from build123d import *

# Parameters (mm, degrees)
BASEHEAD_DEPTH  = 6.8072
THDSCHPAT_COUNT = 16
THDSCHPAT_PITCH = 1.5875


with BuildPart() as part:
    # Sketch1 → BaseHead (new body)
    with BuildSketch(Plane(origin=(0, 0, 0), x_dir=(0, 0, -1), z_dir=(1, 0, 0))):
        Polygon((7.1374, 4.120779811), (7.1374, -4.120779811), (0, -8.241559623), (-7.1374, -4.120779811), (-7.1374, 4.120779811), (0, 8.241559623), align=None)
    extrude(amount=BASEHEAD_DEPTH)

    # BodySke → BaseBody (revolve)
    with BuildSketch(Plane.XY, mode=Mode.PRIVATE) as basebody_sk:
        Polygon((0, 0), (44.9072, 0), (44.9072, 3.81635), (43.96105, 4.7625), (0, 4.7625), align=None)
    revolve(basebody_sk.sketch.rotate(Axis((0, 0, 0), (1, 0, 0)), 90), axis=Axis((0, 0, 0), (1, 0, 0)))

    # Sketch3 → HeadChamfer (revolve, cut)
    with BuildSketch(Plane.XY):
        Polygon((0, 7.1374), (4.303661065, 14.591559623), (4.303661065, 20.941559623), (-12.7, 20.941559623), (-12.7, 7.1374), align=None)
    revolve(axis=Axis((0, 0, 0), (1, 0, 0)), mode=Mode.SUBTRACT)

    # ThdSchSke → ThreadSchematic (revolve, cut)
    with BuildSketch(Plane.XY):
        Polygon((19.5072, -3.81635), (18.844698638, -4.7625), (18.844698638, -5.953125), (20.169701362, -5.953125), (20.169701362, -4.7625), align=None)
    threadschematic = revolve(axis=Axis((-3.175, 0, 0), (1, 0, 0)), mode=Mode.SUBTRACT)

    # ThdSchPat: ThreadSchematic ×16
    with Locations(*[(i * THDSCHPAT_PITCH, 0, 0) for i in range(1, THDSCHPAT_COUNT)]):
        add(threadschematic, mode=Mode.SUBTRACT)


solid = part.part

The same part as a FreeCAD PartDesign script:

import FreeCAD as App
import Part
import Sketcher

V = App.Vector
Q = App.Units.Quantity


def add_polygon(sketch, points):
    """Adds a closed chain of lines whose ends are joined by coincident constraints."""
    first, n = sketch.GeometryCount, len(points)
    for a, b in zip(points, points[1:] + points[:1]):
        sketch.addGeometry(Part.LineSegment(App.Vector(*a, 0), App.Vector(*b, 0)), False)
    for i in range(n):
        sketch.addConstraint(Sketcher.Constraint("Coincident", first + i, 2, first + (i + 1) % n, 1))

doc = App.newDocument("Part")
body = doc.addObject("PartDesign::Body", "Body")

sketch1 = body.newObject("Sketcher::SketchObject", "Sketch")
sketch1.AttachmentSupport = (doc.getObject("YZ_Plane"), [""])
sketch1.MapMode = "FlatFace"
add_polygon(sketch1, [(-4, -7), (4, -7), (8, 0), (4, 7), (-4, 7), (-8, 0)])
sketch1.addConstraint(Sketcher.Constraint("Horizontal", 0))
sketch1.addConstraint(Sketcher.Constraint("Horizontal", 3))
sketch1.addConstraint(Sketcher.Constraint("Symmetric", 0, 2, 3, 2, -1, 1))
sketch1.addConstraint(Sketcher.Constraint("Symmetric", 1, 2, 4, 2, -1, 1))
sketch1.addConstraint(Sketcher.Constraint("PointOnObject", 1, 2, -1))
sketch1.addConstraint(Sketcher.Constraint("Parallel", 2, 5))
sketch1.addConstraint(Sketcher.Constraint("Vertical", 0, 2, 2, 2))
sketch1.addConstraint(Sketcher.Constraint("Angle", 1, Q("60 deg")))
sketch1.addConstraint(Sketcher.Constraint("DistanceY", 0, 2, -1, 1, Q("0.281 in")))
sketch1.addConstraint(Sketcher.Constraint("DistanceX", 0, 1, 0, 2, 8.24156))
pad1 = body.newObject("PartDesign::Pad", "Pad")
pad1.Profile = sketch1
pad1.Length = Q("0.268 in")

sketch2 = body.newObject("Sketcher::SketchObject", "Sketch001")
sketch2.AttachmentSupport = (doc.getObject("XY_Plane"), [""])
sketch2.MapMode = "FlatFace"
add_polygon(sketch2, [(0, 0), (44.9, 0), (44.9, 3.8), (44, 4.8), (0, 4.8)])
sketch2.addConstraint(Sketcher.Constraint("Horizontal", 0))
sketch2.addConstraint(Sketcher.Constraint("Vertical", 1))
sketch2.addConstraint(Sketcher.Constraint("Horizontal", 3))
sketch2.addConstraint(Sketcher.Constraint("Vertical", 4))
sketch2.addConstraint(Sketcher.Constraint("Coincident", 4, 2, -1, 1))
sketch2.addConstraint(Sketcher.Constraint("Angle", 2, Q("135 deg")))
sketch2.addConstraint(Sketcher.Constraint("DistanceX", 0, 1, 0, 2, Q("1.768 in")))
sketch2.addConstraint(Sketcher.Constraint("DistanceY", 4, 2, 4, 1, Q("0.1875 in")))
sketch2.addConstraint(Sketcher.Constraint("DistanceX", 3, 2, 3, 1, 43.96105))
revolution = body.newObject("PartDesign::Revolution", "Revolution")
revolution.Profile = sketch2
revolution.ReferenceAxis = (sketch2, ["H_Axis"])
revolution.Angle = 360

sketch3 = body.newObject("Sketcher::SketchObject", "Sketch002")
sketch3.AttachmentSupport = (doc.getObject("XY_Plane"), [""])
sketch3.MapMode = "FlatFace"
add_polygon(sketch3, [(0, 7), (4, 15), (4, 21), (-13, 21), (-13, 7)])
sketch3.addConstraint(Sketcher.Constraint("Vertical", 1))
sketch3.addConstraint(Sketcher.Constraint("Horizontal", 2))
sketch3.addConstraint(Sketcher.Constraint("Vertical", 3))
sketch3.addConstraint(Sketcher.Constraint("Horizontal", 4))
sketch3.addConstraint(Sketcher.Constraint("PointOnObject", 4, 2, -2))
sketch3.addConstraint(Sketcher.Constraint("DistanceX", 4, 1, 4, 2, Q("0.5 in")))
sketch3.addConstraint(Sketcher.Constraint("Angle", 0, Q("60 deg")))
sketch3.addConstraint(Sketcher.Constraint("DistanceY", 1, 1, 1, 2, Q("0.25 in")))
sketch3.addConstraint(Sketcher.Constraint("DistanceY", -1, 1, 3, 2, Q("0.281 in")))
sketch3.addConstraint(Sketcher.Constraint("DistanceX", 2, 2, 2, 1, 17.003661))
groove = body.newObject("PartDesign::Groove", "Groove")
groove.Profile = sketch3
groove.ReferenceAxis = (sketch3, ["H_Axis"])
groove.Angle = 360

sketch4 = body.newObject("Sketcher::SketchObject", "Sketch003")
sketch4.AttachmentSupport = (doc.getObject("XY_Plane"), [""])
sketch4.MapMode = "FlatFace"
add_polygon(sketch4, [(19.5, -3.8), (18.8, -4.8), (18.8, -6), (20.2, -6), (20.2, -4.8)])
sketch4.addConstraint(Sketcher.Constraint("Vertical", 1))
sketch4.addConstraint(Sketcher.Constraint("Horizontal", 2))
sketch4.addConstraint(Sketcher.Constraint("Vertical", 3))
sketch4.addConstraint(Sketcher.Constraint("Horizontal", 0, 2, 3, 2))
sketch4.addConstraint(Sketcher.Constraint("Equal", 0, 4))
sketch4.addConstraint(Sketcher.Constraint("Angle", 0, Q("-125 deg")))
sketch4.addConstraint(Sketcher.Constraint("DistanceY", 1, 2, 1, 1, Q("0.046875 in")))
sketch4.addConstraint(Sketcher.Constraint("DistanceY", 0, 2, -1, 1, Q("0.1875 in")))
sketch4.addConstraint(Sketcher.Constraint("DistanceX", -1, 1, 4, 2, Q("0.768 in")))
sketch4.addConstraint(Sketcher.Constraint("DistanceX", -1, 1, 0, 2, 18.844699))
groove2 = body.newObject("PartDesign::Groove", "Groove001")
groove2.Profile = sketch4
groove2.ReferenceAxis = (sketch4, ["H_Axis"])
groove2.Angle = 360
doc.recompute()

linearpattern = body.newObject("PartDesign::LinearPattern", "LinearPattern")
linearpattern.Originals = [groove2]
linearpattern.Direction = (doc.getObject("X_Axis"), [""])
linearpattern.Mode = "offset"
linearpattern.Offset = Q("0.0625 in")
linearpattern.Occurrences = 16
body.Tip = linearpattern

doc.recompute()
